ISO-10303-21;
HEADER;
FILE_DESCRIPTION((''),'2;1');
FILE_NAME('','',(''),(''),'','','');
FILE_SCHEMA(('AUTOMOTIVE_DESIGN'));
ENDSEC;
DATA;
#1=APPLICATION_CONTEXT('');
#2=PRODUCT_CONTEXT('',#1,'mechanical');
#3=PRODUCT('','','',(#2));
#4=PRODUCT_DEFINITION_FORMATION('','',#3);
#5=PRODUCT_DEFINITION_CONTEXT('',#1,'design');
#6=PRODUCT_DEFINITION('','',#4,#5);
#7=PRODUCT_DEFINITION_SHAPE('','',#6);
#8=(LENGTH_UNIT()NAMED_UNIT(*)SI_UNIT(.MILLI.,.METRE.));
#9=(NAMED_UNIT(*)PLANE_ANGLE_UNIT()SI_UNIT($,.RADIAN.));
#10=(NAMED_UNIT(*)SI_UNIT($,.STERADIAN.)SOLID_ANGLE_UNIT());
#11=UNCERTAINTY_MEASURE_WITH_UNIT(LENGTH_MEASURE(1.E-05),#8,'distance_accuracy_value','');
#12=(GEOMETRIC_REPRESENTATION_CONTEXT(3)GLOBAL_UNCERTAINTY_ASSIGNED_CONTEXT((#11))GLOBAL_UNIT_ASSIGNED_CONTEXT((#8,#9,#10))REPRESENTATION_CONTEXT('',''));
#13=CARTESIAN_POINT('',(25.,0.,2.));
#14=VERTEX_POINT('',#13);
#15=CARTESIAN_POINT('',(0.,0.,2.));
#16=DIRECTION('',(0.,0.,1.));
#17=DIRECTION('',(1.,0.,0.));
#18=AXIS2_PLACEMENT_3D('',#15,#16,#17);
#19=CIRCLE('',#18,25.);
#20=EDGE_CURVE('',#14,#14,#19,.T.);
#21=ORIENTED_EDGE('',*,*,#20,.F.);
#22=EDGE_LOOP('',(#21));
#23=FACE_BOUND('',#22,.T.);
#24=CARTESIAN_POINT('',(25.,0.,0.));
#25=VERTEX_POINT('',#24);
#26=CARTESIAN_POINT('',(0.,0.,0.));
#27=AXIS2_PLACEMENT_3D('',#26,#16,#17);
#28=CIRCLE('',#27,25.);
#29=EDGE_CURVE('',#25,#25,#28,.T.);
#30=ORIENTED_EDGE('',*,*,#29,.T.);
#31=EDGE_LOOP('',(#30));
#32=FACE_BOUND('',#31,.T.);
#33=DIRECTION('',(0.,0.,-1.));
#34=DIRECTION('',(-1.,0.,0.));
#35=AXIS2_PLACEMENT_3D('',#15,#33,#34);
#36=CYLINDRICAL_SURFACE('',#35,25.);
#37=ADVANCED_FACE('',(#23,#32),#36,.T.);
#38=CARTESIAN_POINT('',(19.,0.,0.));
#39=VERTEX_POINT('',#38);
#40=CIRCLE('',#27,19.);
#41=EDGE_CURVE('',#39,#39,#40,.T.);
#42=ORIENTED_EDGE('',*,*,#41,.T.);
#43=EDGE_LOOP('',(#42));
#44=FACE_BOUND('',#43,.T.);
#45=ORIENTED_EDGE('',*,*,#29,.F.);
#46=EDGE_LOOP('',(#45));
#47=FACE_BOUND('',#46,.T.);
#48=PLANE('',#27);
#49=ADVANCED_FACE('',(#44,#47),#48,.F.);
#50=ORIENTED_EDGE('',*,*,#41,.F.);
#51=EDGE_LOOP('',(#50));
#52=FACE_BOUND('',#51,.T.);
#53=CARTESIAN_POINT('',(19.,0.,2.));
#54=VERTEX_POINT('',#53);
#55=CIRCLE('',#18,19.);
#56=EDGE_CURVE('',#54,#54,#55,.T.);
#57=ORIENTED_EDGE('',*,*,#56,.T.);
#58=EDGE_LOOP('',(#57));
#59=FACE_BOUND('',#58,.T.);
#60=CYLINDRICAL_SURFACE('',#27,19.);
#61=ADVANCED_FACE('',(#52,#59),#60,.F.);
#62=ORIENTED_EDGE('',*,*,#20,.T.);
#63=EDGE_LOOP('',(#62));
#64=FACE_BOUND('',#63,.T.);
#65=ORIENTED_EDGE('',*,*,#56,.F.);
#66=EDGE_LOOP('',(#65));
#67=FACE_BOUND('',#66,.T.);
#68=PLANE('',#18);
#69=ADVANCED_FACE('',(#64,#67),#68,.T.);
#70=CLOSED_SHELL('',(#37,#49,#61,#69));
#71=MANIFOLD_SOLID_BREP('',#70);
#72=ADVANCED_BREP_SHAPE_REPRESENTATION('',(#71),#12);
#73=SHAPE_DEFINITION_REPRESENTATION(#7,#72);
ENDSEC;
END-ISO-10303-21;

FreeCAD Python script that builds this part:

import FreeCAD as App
import Part
import Sketcher

doc = App.newDocument("Part")
body = doc.addObject("PartDesign::Body", "Body")

sketch1 = body.newObject("Sketcher::SketchObject", "Sketch")
sketch1.AttachmentSupport = (doc.getObject("XY_Plane"), [""])
sketch1.MapMode = "FlatFace"
sketch1.addGeometry(Part.Circle(App.Vector(0, 0, 0), App.Vector(0, 0, 1), 25), False)
sketch1.addConstraint([
    Sketcher.Constraint("Coincident", 0, 3, -1, 1),
    Sketcher.Constraint("Diameter", 0, 50.0),
])
pad1 = body.newObject("PartDesign::Pad", "Pad")
pad1.Profile = sketch1
pad1.Length = 2

sketch2 = body.newObject("Sketcher::SketchObject", "Sketch001")
sketch2.AttachmentSupport = (doc.getObject("XY_Plane"), [""])
sketch2.MapMode = "FlatFace"
sketch2.AttachmentOffset = App.Placement(App.Vector(0, 0, 2), App.Rotation())
sketch2.addGeometry(Part.Circle(App.Vector(0, 0, 0), App.Vector(0, 0, 1), 19), False)
sketch2.addConstraint([
    Sketcher.Constraint("Coincident", 0, 3, -1, 1),
    Sketcher.Constraint("Diameter", 0, 38.0),
])
pocket1 = body.newObject("PartDesign::Pocket", "Pocket")
pocket1.Profile = sketch2
pocket1.Type = "ThroughAll"

doc.recompute()
